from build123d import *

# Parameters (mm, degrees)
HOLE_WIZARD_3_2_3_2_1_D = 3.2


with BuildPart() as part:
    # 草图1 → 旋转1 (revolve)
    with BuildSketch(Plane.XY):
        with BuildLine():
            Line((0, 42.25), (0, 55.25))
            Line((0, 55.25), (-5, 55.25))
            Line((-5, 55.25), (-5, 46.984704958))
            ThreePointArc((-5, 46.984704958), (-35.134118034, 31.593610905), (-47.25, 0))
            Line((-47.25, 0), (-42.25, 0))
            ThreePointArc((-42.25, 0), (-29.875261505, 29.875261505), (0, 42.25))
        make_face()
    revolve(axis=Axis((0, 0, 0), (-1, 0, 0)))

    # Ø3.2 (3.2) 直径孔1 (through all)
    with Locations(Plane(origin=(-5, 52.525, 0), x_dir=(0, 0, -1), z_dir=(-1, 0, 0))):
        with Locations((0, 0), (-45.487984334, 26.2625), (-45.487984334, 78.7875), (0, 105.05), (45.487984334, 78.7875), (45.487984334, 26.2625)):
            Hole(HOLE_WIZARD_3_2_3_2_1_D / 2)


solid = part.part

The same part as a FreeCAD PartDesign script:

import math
import FreeCAD as App
import Part
import Sketcher

V = App.Vector

doc = App.newDocument("Part")
body = doc.addObject("PartDesign::Body", "Body")

# Sketch on XY plane
sketch1 = body.newObject("Sketcher::SketchObject", "Sketch")
sketch1.AttachmentSupport = (doc.getObject("XY_Plane"), [""])
sketch1.MapMode = "FlatFace"
sketch1.addGeometry([
    Part.LineSegment(V(0, 42, 0), V(0, 55, 0)),  # 0
    Part.LineSegment(V(0, 55, 0), V(-5, 55, 0)),  # 1
    Part.LineSegment(V(-5, 55, 0), V(-5, 47, 0)),  # 2
    Part.ArcOfCircle(Part.Circle(V(0, 0, 0), V(0, 0, 1), 47), math.radians(96), math.radians(180)),  # 3
    Part.LineSegment(V(-47, 0, 0), V(-42, 0, 0)),  # 4
    Part.ArcOfCircle(Part.Circle(V(0, 0, 0), V(0, 0, 1), 42), math.radians(90), math.radians(180)),  # 5
], False)
sketch1.addConstraint([
    Sketcher.Constraint("Coincident", 0, 2, 1, 1),
    Sketcher.Constraint("Coincident", 1, 2, 2, 1),
    Sketcher.Constraint("Coincident", 2, 2, 3, 1),
    Sketcher.Constraint("Coincident", 3, 2, 4, 1),
    Sketcher.Constraint("Coincident", 4, 2, 5, 2),
    Sketcher.Constraint("Coincident", 5, 1, 0, 1),
    Sketcher.Constraint("Vertical", 0),
    Sketcher.Constraint("Horizontal", 1),
    Sketcher.Constraint("Vertical", 2),
    Sketcher.Constraint("Horizontal", 4),
    Sketcher.Constraint("Coincident", 3, 3, -1, 1),
    Sketcher.Constraint("Coincident", 5, 3, -1, 1),
    Sketcher.Constraint("PointOnObject", 0, 2, -2),
    Sketcher.Constraint("PointOnObject", 3, 2, -1),
    Sketcher.Constraint("Equal", 1, 4),
    Sketcher.Constraint("DistanceX", 1, 2, 1, 1, 5.0),
    Sketcher.Constraint("DistanceY", 0, 1, 0, 2, 13.0),
    Sketcher.Constraint("Radius", 3, 47.25),
])
revolution = body.newObject("PartDesign::Revolution", "Revolution")
revolution.Profile = sketch1
revolution.ReferenceAxis = (sketch1, ["H_Axis"])
revolution.Angle = 360

# Sketch on YZ plane
sketch2 = body.newObject("Sketcher::SketchObject", "Sketch001")
sketch2.AttachmentSupport = (doc.getObject("YZ_Plane"), [""])
sketch2.MapMode = "FlatFace"
sketch2.AttachmentOffset = App.Placement(V(0, 0, -5), App.Rotation())
sketch2.addGeometry([
    Part.Circle(V(52.5, 0, 0), V(0, 0, 1), 1.6),  # 0
    Part.Circle(V(26.3, 45.5, 0), V(0, 0, 1), 1.6),  # 1
    Part.Circle(V(-26.3, 45.5, 0), V(0, 0, 1), 1.6),  # 2
    Part.Circle(V(-52.5, 0, 0), V(0, 0, 1), 1.6),  # 3
    Part.Circle(V(-26.3, -45.5, 0), V(0, 0, 1), 1.6),  # 4
    Part.Circle(V(26.3, -45.5, 0), V(0, 0, 1), 1.6),  # 5
], False)
sketch2.addConstraint([
    Sketcher.Constraint("Equal", 0, 1),
    Sketcher.Constraint("Equal", 1, 2),
    Sketcher.Constraint("Equal", 2, 3),
    Sketcher.Constraint("Equal", 3, 4),
    Sketcher.Constraint("Equal", 4, 5),
    Sketcher.Constraint("Symmetric", 0, 3, 3, 3, -1, 1),
    Sketcher.Constraint("Symmetric", 1, 3, 4, 3, -1, 1),
    Sketcher.Constraint("Symmetric", 2, 3, 5, 3, -1, 1),
    Sketcher.Constraint("Symmetric", 1, 3, 2, 3, -2),
    Sketcher.Constraint("PointOnObject", 0, 3, -1),
    Sketcher.Constraint("Diameter", 0, 3.2),
    Sketcher.Constraint("DistanceX", 3, 3, 0, 3, 105.05),
    Sketcher.Constraint("DistanceX", 2, 3, 1, 3, 52.525),
    Sketcher.Constraint("DistanceY", 4, 3, 2, 3, 90.975969),
])
doc.recompute()
hole = body.newObject("PartDesign::Hole", "Hole")
hole.Profile = sketch2
hole.ThreadType = "None"
hole.Diameter = 3.2
hole.DepthType = "ThroughAll"
hole.Reversed = True

doc.recompute()
